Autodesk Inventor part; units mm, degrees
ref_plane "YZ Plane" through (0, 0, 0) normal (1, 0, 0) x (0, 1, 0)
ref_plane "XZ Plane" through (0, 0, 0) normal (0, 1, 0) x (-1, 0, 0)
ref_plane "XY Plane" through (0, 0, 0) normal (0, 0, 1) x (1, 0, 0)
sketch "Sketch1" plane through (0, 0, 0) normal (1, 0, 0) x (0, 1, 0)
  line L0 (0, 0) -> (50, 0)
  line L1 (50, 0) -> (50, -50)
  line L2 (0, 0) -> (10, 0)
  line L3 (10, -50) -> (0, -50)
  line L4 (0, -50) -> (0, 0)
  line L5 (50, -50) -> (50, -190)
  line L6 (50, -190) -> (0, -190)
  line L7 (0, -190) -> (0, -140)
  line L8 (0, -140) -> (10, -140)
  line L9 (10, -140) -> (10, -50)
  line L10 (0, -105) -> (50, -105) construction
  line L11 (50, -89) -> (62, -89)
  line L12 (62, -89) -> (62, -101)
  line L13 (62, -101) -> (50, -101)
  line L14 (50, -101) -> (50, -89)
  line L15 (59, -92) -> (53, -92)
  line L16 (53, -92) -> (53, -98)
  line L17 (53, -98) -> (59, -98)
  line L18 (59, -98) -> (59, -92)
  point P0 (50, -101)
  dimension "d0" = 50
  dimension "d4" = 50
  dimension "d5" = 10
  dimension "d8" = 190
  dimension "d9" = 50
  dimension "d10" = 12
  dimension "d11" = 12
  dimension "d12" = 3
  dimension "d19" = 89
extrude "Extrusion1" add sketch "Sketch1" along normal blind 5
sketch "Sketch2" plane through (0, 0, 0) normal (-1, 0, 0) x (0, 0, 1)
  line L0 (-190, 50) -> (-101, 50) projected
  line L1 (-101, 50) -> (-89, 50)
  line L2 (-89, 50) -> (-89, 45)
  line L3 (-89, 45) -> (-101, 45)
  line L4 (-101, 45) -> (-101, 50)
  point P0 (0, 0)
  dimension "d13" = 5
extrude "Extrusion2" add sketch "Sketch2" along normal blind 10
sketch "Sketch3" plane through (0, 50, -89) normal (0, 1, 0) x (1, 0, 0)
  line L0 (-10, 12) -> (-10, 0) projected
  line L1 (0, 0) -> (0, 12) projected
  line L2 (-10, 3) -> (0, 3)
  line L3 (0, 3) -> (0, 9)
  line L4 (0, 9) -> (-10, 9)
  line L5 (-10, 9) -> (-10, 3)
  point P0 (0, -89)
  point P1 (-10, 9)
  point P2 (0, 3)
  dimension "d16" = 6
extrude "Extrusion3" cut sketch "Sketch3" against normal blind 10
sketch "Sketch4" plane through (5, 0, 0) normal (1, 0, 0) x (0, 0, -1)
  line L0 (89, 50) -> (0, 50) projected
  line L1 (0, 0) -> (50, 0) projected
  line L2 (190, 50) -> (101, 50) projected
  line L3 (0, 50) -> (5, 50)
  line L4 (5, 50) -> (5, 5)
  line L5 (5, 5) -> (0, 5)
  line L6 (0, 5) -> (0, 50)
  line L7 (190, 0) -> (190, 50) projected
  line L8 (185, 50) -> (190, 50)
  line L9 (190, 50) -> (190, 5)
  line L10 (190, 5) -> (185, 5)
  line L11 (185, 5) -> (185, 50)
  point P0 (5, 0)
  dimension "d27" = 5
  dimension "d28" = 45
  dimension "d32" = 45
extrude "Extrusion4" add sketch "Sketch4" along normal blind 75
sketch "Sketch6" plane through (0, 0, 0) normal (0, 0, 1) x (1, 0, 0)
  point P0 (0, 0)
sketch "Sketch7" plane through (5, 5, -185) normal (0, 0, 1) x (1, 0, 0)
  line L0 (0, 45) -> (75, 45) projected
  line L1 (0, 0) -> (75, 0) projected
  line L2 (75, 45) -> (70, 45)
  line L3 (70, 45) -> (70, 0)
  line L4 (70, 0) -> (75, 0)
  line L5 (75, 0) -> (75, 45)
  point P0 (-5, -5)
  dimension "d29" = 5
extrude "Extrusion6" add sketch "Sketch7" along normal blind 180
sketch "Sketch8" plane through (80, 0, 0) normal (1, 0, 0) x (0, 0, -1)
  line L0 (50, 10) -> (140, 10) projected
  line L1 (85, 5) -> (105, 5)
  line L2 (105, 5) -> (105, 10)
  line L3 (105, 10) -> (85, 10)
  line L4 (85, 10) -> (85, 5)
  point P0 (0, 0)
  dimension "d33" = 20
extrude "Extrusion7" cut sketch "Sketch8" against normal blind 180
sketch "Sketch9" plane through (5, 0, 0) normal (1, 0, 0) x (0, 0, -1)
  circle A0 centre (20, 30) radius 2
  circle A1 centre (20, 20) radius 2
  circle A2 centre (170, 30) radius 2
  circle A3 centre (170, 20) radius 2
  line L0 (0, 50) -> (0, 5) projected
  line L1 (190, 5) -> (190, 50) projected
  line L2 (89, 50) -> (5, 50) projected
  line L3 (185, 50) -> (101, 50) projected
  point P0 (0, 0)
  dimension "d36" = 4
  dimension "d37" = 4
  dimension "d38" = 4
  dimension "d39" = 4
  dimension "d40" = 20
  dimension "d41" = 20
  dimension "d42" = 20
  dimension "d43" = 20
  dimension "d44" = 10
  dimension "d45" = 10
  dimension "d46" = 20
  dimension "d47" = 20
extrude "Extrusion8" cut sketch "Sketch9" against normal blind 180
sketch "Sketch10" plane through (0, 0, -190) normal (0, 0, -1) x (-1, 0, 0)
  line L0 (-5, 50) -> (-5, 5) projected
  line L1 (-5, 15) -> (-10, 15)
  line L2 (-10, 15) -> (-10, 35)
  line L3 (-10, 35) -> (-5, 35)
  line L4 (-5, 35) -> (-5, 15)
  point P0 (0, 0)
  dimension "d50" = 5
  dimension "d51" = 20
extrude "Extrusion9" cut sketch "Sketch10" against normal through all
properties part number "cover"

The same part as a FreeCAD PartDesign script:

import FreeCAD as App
import Part
import Sketcher
Q = App.Units.Quantity


def add_polygon(sketch, points):
    """Adds a closed chain of lines whose ends are joined by coincident constraints."""
    first, n = sketch.GeometryCount, len(points)
    for a, b in zip(points, points[1:] + points[:1]):
        sketch.addGeometry(Part.LineSegment(App.Vector(*a, 0), App.Vector(*b, 0)), False)
    for i in range(n):
        sketch.addConstraint(Sketcher.Constraint("Coincident", first + i, 2, first + (i + 1) % n, 1))

doc = App.newDocument("Part")
body = doc.addObject("PartDesign::Body", "Body")

sketch1 = doc.addObject("Sketcher::SketchObject", "Sketch")
body.addObject(sketch1)
sketch1.AttachmentSupport = (doc.YZ_Plane, [""])
sketch1.MapMode = "FlatFace"
add_polygon(sketch1, [(0, 0), (0, -50), (10, -50), (10, -140), (0, -140), (0, -190), (50, -190), (50, -101), (62, -101), (62, -89), (50, -89), (50, 0)])
add_polygon(sketch1, [(59, -92), (59, -98), (53, -98), (53, -92)])
sketch1.addConstraint([
    Sketcher.Constraint("Vertical", 0),
    Sketcher.Constraint("Horizontal", 1),
    Sketcher.Constraint("Vertical", 2),
    Sketcher.Constraint("Horizontal", 3),
    Sketcher.Constraint("Vertical", 4),
    Sketcher.Constraint("Horizontal", 5),
    Sketcher.Constraint("Vertical", 6),
    Sketcher.Constraint("Horizontal", 7),
    Sketcher.Constraint("Vertical", 8),
    Sketcher.Constraint("Horizontal", 9),
    Sketcher.Constraint("Vertical", 10),
    Sketcher.Constraint("Horizontal", 11),
    Sketcher.Constraint("Vertical", 12),
    Sketcher.Constraint("Horizontal", 13),
    Sketcher.Constraint("Vertical", 14),
    Sketcher.Constraint("Horizontal", 15),
    Sketcher.Constraint("Coincident", 11, 2, -1, 1),
    Sketcher.Constraint("PointOnObject", 3, 2, -2),
    Sketcher.Constraint("Vertical", 6, 2, 9, 2),
    Sketcher.Constraint("Equal", 11, 0),
    Sketcher.Constraint("Equal", 0, 4),
    Sketcher.Constraint("Equal", 9, 8),
    Sketcher.Constraint("Equal", 6, 10),
    Sketcher.Constraint("Equal", 15, 12),
    Sketcher.Constraint("DistanceX", 1, 1, 1, 2, Q("10 mm")),
    Sketcher.Constraint("DistanceX", 5, 1, 5, 2, Q("50 mm")),
    Sketcher.Constraint("DistanceX", 7, 1, 7, 2, Q("12 mm")),
    Sketcher.Constraint("DistanceY", 6, 1, 6, 2, Q("89 mm")),
    Sketcher.Constraint("DistanceX", 12, 2, 7, 2, Q("3 mm")),
    Sketcher.Constraint("DistanceY", 7, 2, 12, 2, Q("3 mm")),
    Sketcher.Constraint("DistanceX", 6, 2, 13, 2, Q("3 mm")),
])
pad1 = doc.addObject("PartDesign::Pad", "Pad")
body.addObject(pad1)
pad1.Profile = sketch1
pad1.Length = 5

sketch2 = doc.addObject("Sketcher::SketchObject", "Sketch001")
body.addObject(sketch2)
sketch2.AttachmentSupport = (doc.YZ_Plane, [""])
sketch2.MapMode = "FlatFace"
add_polygon(sketch2, [(50, -89), (50, -101), (45, -101), (45, -89)])
sketch2.addConstraint([
    Sketcher.Constraint("Vertical", 0),
    Sketcher.Constraint("Horizontal", 1),
    Sketcher.Constraint("Vertical", 2),
    Sketcher.Constraint("Horizontal", 3),
    Sketcher.Constraint("DistanceX", 1, 2, 1, 1, Q("5 mm")),
    Sketcher.Constraint("DistanceY", 0, 2, 0, 1, Q("12 mm")),
    Sketcher.Constraint("DistanceX", -1, 1, 0, 2, Q("50 mm")),
    Sketcher.Constraint("DistanceY", 0, 2, -1, 1, Q("101 mm")),
])
pad2 = doc.addObject("PartDesign::Pad", "Pad001")
body.addObject(pad2)
pad2.Profile = sketch2
pad2.Length = 10
pad2.Reversed = True

sketch3 = doc.addObject("Sketcher::SketchObject", "Sketch002")
body.addObject(sketch3)
sketch3.AttachmentSupport = (doc.XZ_Plane, [""])
sketch3.MapMode = "FlatFace"
sketch3.AttachmentOffset = App.Placement(App.Vector(0, 0, -50), App.Rotation())
add_polygon(sketch3, [(0, -98), (-10, -98), (-10, -92), (0, -92)])
sketch3.addConstraint([
    Sketcher.Constraint("Horizontal", 0),
    Sketcher.Constraint("Vertical", 1),
    Sketcher.Constraint("Horizontal", 2),
    Sketcher.Constraint("Vertical", 3),
    Sketcher.Constraint("PointOnObject", 2, 2, -2),
    Sketcher.Constraint("DistanceY", 1, 1, 1, 2, Q("6 mm")),
    Sketcher.Constraint("DistanceX", 0, 2, 0, 1, Q("10 mm")),
    Sketcher.Constraint("DistanceY", 0, 2, -1, 1, Q("98 mm")),
])
pocket1 = doc.addObject("PartDesign::Pocket", "Pocket")
body.addObject(pocket1)
pocket1.Profile = sketch3
pocket1.Length = 10
pocket1.Reversed = True

sketch4 = doc.addObject("Sketcher::SketchObject", "Sketch003")
body.addObject(sketch4)
sketch4.AttachmentSupport = (doc.YZ_Plane, [""])
sketch4.MapMode = "FlatFace"
sketch4.AttachmentOffset = App.Placement(App.Vector(0, 0, 5), App.Rotation())
add_polygon(sketch4, [(5, -5), (50, -5), (50, 0), (5, 0)])
add_polygon(sketch4, [(5, -190), (50, -190), (50, -185), (5, -185)])
sketch4.addConstraint([
    Sketcher.Constraint("Horizontal", 0),
    Sketcher.Constraint("Vertical", 1),
    Sketcher.Constraint("Horizontal", 2),
    Sketcher.Constraint("Vertical", 3),
    Sketcher.Constraint("Horizontal", 4),
    Sketcher.Constraint("Vertical", 5),
    Sketcher.Constraint("Horizontal", 6),
    Sketcher.Constraint("Vertical", 7),
    Sketcher.Constraint("PointOnObject", 1, 2, -1),
    Sketcher.Constraint("Vertical", 1, 2, 4, 2),
    Sketcher.Constraint("Vertical", 3, 2, 6, 2),
    Sketcher.Constraint("Equal", 3, 5),
    Sketcher.Constraint("DistanceX", 0, 1, 0, 2, Q("45 mm")),
    Sketcher.Constraint("DistanceY", 1, 1, 1, 2, Q("5 mm")),
    Sketcher.Constraint("DistanceX", -1, 1, 2, 2, Q("5 mm")),
    Sketcher.Constraint("DistanceY", 4, 2, -1, 1, Q("190 mm")),
])
pad3 = doc.addObject("PartDesign::Pad", "Pad002")
body.addObject(pad3)
pad3.Profile = sketch4
pad3.Length = 75

sketch5 = doc.addObject("Sketcher::SketchObject", "Sketch004")
body.addObject(sketch5)
sketch5.AttachmentSupport = (doc.XY_Plane, [""])
sketch5.MapMode = "FlatFace"
sketch5.AttachmentOffset = App.Placement(App.Vector(0, 0, -185), App.Rotation())
add_polygon(sketch5, [(80, 50), (75, 50), (75, 5), (80, 5)])
sketch5.addConstraint([
    Sketcher.Constraint("Horizontal", 0),
    Sketcher.Constraint("Vertical", 1),
    Sketcher.Constraint("Horizontal", 2),
    Sketcher.Constraint("Vertical", 3),
    Sketcher.Constraint("DistanceX", 0, 2, 0, 1, Q("5 mm")),
    Sketcher.Constraint("DistanceY", -1, 1, 1, 2, Q("5 mm")),
    Sketcher.Constraint("DistanceY", 1, 2, 1, 1, Q("45 mm")),
    Sketcher.Constraint("DistanceX", -1, 1, 0, 2, Q("75 mm")),
])
pad4 = doc.addObject("PartDesign::Pad", "Pad003")
body.addObject(pad4)
pad4.Profile = sketch5
pad4.Length = 180

sketch6 = doc.addObject("Sketcher::SketchObject", "Sketch005")
body.addObject(sketch6)
sketch6.AttachmentSupport = (doc.YZ_Plane, [""])
sketch6.MapMode = "FlatFace"
sketch6.AttachmentOffset = App.Placement(App.Vector(0, 0, 80), App.Rotation())
add_polygon(sketch6, [(10, -105), (10, -85), (5, -85), (5, -105)])
sketch6.addConstraint([
    Sketcher.Constraint("Vertical", 0),
    Sketcher.Constraint("Horizontal", 1),
    Sketcher.Constraint("Vertical", 2),
    Sketcher.Constraint("Horizontal", 3),
    Sketcher.Constraint("DistanceY", 0, 1, 0, 2, Q("20 mm")),
    Sketcher.Constraint("DistanceX", 1, 2, 1, 1, Q("5 mm")),
    Sketcher.Constraint("DistanceX", -1, 1, 0, 2, Q("10 mm")),
    Sketcher.Constraint("DistanceY", 0, 2, -1, 1, Q("85 mm")),
])
pocket2 = doc.addObject("PartDesign::Pocket", "Pocket001")
body.addObject(pocket2)
pocket2.Profile = sketch6
pocket2.Length = 180

sketch7 = doc.addObject("Sketcher::SketchObject", "Sketch006")
body.addObject(sketch7)
sketch7.AttachmentSupport = (doc.YZ_Plane, [""])
sketch7.MapMode = "FlatFace"
sketch7.AttachmentOffset = App.Placement(App.Vector(0, 0, 5), App.Rotation())
sketch7.addGeometry([
    Part.Circle(App.Vector(30, -20, 0), App.Vector(0, 0, 1), 2),
    Part.Circle(App.Vector(20, -20, 0), App.Vector(0, 0, 1), 2),
    Part.Circle(App.Vector(30, -170, 0), App.Vector(0, 0, 1), 2),
    Part.Circle(App.Vector(20, -170, 0), App.Vector(0, 0, 1), 2),
], False)
sketch7.addConstraint([
    Sketcher.Constraint("Equal", 0, 1),
    Sketcher.Constraint("Equal", 1, 2),
    Sketcher.Constraint("Equal", 2, 3),
    Sketcher.Constraint("Horizontal", 0, 3, 1, 3),
    Sketcher.Constraint("Horizontal", 2, 3, 3, 3),
    Sketcher.Constraint("Vertical", 0, 3, 2, 3),
    Sketcher.Constraint("Vertical", 1, 3, 3, 3),
    Sketcher.Constraint("Diameter", 0, Q("4 mm")),
    Sketcher.Constraint("DistanceY", 0, 3, -1, 1, Q("20 mm")),
    Sketcher.Constraint("DistanceX", -1, 1, 1, 3, Q("20 mm")),
    Sketcher.Constraint("DistanceX", 1, 3, 0, 3, Q("10 mm")),
    Sketcher.Constraint("DistanceY", 2, 3, -1, 1, Q("170 mm")),
])
pocket3 = doc.addObject("PartDesign::Pocket", "Pocket002")
body.addObject(pocket3)
pocket3.Profile = sketch7
pocket3.Length = 180

sketch8 = doc.addObject("Sketcher::SketchObject", "Sketch007")
body.addObject(sketch8)
sketch8.AttachmentSupport = (doc.XY_Plane, [""])
sketch8.MapMode = "FlatFace"
sketch8.AttachmentOffset = App.Placement(App.Vector(0, 0, -190), App.Rotation())
add_polygon(sketch8, [(5, 15), (5, 35), (10, 35), (10, 15)])
sketch8.addConstraint([
    Sketcher.Constraint("Vertical", 0),
    Sketcher.Constraint("Horizontal", 1),
    Sketcher.Constraint("Vertical", 2),
    Sketcher.Constraint("Horizontal", 3),
    Sketcher.Constraint("DistanceX", 1, 1, 1, 2, Q("5 mm")),
    Sketcher.Constraint("DistanceY", 0, 1, 0, 2, Q("20 mm")),
    Sketcher.Constraint("DistanceX", -1, 1, 0, 2, Q("5 mm")),
    Sketcher.Constraint("DistanceY", -1, 1, 0, 2, Q("35 mm")),
])
pocket4 = doc.addObject("PartDesign::Pocket", "Pocket003")
body.addObject(pocket4)
pocket4.Profile = sketch8
pocket4.Type = "ThroughAll"
pocket4.Reversed = True

doc.recompute()
